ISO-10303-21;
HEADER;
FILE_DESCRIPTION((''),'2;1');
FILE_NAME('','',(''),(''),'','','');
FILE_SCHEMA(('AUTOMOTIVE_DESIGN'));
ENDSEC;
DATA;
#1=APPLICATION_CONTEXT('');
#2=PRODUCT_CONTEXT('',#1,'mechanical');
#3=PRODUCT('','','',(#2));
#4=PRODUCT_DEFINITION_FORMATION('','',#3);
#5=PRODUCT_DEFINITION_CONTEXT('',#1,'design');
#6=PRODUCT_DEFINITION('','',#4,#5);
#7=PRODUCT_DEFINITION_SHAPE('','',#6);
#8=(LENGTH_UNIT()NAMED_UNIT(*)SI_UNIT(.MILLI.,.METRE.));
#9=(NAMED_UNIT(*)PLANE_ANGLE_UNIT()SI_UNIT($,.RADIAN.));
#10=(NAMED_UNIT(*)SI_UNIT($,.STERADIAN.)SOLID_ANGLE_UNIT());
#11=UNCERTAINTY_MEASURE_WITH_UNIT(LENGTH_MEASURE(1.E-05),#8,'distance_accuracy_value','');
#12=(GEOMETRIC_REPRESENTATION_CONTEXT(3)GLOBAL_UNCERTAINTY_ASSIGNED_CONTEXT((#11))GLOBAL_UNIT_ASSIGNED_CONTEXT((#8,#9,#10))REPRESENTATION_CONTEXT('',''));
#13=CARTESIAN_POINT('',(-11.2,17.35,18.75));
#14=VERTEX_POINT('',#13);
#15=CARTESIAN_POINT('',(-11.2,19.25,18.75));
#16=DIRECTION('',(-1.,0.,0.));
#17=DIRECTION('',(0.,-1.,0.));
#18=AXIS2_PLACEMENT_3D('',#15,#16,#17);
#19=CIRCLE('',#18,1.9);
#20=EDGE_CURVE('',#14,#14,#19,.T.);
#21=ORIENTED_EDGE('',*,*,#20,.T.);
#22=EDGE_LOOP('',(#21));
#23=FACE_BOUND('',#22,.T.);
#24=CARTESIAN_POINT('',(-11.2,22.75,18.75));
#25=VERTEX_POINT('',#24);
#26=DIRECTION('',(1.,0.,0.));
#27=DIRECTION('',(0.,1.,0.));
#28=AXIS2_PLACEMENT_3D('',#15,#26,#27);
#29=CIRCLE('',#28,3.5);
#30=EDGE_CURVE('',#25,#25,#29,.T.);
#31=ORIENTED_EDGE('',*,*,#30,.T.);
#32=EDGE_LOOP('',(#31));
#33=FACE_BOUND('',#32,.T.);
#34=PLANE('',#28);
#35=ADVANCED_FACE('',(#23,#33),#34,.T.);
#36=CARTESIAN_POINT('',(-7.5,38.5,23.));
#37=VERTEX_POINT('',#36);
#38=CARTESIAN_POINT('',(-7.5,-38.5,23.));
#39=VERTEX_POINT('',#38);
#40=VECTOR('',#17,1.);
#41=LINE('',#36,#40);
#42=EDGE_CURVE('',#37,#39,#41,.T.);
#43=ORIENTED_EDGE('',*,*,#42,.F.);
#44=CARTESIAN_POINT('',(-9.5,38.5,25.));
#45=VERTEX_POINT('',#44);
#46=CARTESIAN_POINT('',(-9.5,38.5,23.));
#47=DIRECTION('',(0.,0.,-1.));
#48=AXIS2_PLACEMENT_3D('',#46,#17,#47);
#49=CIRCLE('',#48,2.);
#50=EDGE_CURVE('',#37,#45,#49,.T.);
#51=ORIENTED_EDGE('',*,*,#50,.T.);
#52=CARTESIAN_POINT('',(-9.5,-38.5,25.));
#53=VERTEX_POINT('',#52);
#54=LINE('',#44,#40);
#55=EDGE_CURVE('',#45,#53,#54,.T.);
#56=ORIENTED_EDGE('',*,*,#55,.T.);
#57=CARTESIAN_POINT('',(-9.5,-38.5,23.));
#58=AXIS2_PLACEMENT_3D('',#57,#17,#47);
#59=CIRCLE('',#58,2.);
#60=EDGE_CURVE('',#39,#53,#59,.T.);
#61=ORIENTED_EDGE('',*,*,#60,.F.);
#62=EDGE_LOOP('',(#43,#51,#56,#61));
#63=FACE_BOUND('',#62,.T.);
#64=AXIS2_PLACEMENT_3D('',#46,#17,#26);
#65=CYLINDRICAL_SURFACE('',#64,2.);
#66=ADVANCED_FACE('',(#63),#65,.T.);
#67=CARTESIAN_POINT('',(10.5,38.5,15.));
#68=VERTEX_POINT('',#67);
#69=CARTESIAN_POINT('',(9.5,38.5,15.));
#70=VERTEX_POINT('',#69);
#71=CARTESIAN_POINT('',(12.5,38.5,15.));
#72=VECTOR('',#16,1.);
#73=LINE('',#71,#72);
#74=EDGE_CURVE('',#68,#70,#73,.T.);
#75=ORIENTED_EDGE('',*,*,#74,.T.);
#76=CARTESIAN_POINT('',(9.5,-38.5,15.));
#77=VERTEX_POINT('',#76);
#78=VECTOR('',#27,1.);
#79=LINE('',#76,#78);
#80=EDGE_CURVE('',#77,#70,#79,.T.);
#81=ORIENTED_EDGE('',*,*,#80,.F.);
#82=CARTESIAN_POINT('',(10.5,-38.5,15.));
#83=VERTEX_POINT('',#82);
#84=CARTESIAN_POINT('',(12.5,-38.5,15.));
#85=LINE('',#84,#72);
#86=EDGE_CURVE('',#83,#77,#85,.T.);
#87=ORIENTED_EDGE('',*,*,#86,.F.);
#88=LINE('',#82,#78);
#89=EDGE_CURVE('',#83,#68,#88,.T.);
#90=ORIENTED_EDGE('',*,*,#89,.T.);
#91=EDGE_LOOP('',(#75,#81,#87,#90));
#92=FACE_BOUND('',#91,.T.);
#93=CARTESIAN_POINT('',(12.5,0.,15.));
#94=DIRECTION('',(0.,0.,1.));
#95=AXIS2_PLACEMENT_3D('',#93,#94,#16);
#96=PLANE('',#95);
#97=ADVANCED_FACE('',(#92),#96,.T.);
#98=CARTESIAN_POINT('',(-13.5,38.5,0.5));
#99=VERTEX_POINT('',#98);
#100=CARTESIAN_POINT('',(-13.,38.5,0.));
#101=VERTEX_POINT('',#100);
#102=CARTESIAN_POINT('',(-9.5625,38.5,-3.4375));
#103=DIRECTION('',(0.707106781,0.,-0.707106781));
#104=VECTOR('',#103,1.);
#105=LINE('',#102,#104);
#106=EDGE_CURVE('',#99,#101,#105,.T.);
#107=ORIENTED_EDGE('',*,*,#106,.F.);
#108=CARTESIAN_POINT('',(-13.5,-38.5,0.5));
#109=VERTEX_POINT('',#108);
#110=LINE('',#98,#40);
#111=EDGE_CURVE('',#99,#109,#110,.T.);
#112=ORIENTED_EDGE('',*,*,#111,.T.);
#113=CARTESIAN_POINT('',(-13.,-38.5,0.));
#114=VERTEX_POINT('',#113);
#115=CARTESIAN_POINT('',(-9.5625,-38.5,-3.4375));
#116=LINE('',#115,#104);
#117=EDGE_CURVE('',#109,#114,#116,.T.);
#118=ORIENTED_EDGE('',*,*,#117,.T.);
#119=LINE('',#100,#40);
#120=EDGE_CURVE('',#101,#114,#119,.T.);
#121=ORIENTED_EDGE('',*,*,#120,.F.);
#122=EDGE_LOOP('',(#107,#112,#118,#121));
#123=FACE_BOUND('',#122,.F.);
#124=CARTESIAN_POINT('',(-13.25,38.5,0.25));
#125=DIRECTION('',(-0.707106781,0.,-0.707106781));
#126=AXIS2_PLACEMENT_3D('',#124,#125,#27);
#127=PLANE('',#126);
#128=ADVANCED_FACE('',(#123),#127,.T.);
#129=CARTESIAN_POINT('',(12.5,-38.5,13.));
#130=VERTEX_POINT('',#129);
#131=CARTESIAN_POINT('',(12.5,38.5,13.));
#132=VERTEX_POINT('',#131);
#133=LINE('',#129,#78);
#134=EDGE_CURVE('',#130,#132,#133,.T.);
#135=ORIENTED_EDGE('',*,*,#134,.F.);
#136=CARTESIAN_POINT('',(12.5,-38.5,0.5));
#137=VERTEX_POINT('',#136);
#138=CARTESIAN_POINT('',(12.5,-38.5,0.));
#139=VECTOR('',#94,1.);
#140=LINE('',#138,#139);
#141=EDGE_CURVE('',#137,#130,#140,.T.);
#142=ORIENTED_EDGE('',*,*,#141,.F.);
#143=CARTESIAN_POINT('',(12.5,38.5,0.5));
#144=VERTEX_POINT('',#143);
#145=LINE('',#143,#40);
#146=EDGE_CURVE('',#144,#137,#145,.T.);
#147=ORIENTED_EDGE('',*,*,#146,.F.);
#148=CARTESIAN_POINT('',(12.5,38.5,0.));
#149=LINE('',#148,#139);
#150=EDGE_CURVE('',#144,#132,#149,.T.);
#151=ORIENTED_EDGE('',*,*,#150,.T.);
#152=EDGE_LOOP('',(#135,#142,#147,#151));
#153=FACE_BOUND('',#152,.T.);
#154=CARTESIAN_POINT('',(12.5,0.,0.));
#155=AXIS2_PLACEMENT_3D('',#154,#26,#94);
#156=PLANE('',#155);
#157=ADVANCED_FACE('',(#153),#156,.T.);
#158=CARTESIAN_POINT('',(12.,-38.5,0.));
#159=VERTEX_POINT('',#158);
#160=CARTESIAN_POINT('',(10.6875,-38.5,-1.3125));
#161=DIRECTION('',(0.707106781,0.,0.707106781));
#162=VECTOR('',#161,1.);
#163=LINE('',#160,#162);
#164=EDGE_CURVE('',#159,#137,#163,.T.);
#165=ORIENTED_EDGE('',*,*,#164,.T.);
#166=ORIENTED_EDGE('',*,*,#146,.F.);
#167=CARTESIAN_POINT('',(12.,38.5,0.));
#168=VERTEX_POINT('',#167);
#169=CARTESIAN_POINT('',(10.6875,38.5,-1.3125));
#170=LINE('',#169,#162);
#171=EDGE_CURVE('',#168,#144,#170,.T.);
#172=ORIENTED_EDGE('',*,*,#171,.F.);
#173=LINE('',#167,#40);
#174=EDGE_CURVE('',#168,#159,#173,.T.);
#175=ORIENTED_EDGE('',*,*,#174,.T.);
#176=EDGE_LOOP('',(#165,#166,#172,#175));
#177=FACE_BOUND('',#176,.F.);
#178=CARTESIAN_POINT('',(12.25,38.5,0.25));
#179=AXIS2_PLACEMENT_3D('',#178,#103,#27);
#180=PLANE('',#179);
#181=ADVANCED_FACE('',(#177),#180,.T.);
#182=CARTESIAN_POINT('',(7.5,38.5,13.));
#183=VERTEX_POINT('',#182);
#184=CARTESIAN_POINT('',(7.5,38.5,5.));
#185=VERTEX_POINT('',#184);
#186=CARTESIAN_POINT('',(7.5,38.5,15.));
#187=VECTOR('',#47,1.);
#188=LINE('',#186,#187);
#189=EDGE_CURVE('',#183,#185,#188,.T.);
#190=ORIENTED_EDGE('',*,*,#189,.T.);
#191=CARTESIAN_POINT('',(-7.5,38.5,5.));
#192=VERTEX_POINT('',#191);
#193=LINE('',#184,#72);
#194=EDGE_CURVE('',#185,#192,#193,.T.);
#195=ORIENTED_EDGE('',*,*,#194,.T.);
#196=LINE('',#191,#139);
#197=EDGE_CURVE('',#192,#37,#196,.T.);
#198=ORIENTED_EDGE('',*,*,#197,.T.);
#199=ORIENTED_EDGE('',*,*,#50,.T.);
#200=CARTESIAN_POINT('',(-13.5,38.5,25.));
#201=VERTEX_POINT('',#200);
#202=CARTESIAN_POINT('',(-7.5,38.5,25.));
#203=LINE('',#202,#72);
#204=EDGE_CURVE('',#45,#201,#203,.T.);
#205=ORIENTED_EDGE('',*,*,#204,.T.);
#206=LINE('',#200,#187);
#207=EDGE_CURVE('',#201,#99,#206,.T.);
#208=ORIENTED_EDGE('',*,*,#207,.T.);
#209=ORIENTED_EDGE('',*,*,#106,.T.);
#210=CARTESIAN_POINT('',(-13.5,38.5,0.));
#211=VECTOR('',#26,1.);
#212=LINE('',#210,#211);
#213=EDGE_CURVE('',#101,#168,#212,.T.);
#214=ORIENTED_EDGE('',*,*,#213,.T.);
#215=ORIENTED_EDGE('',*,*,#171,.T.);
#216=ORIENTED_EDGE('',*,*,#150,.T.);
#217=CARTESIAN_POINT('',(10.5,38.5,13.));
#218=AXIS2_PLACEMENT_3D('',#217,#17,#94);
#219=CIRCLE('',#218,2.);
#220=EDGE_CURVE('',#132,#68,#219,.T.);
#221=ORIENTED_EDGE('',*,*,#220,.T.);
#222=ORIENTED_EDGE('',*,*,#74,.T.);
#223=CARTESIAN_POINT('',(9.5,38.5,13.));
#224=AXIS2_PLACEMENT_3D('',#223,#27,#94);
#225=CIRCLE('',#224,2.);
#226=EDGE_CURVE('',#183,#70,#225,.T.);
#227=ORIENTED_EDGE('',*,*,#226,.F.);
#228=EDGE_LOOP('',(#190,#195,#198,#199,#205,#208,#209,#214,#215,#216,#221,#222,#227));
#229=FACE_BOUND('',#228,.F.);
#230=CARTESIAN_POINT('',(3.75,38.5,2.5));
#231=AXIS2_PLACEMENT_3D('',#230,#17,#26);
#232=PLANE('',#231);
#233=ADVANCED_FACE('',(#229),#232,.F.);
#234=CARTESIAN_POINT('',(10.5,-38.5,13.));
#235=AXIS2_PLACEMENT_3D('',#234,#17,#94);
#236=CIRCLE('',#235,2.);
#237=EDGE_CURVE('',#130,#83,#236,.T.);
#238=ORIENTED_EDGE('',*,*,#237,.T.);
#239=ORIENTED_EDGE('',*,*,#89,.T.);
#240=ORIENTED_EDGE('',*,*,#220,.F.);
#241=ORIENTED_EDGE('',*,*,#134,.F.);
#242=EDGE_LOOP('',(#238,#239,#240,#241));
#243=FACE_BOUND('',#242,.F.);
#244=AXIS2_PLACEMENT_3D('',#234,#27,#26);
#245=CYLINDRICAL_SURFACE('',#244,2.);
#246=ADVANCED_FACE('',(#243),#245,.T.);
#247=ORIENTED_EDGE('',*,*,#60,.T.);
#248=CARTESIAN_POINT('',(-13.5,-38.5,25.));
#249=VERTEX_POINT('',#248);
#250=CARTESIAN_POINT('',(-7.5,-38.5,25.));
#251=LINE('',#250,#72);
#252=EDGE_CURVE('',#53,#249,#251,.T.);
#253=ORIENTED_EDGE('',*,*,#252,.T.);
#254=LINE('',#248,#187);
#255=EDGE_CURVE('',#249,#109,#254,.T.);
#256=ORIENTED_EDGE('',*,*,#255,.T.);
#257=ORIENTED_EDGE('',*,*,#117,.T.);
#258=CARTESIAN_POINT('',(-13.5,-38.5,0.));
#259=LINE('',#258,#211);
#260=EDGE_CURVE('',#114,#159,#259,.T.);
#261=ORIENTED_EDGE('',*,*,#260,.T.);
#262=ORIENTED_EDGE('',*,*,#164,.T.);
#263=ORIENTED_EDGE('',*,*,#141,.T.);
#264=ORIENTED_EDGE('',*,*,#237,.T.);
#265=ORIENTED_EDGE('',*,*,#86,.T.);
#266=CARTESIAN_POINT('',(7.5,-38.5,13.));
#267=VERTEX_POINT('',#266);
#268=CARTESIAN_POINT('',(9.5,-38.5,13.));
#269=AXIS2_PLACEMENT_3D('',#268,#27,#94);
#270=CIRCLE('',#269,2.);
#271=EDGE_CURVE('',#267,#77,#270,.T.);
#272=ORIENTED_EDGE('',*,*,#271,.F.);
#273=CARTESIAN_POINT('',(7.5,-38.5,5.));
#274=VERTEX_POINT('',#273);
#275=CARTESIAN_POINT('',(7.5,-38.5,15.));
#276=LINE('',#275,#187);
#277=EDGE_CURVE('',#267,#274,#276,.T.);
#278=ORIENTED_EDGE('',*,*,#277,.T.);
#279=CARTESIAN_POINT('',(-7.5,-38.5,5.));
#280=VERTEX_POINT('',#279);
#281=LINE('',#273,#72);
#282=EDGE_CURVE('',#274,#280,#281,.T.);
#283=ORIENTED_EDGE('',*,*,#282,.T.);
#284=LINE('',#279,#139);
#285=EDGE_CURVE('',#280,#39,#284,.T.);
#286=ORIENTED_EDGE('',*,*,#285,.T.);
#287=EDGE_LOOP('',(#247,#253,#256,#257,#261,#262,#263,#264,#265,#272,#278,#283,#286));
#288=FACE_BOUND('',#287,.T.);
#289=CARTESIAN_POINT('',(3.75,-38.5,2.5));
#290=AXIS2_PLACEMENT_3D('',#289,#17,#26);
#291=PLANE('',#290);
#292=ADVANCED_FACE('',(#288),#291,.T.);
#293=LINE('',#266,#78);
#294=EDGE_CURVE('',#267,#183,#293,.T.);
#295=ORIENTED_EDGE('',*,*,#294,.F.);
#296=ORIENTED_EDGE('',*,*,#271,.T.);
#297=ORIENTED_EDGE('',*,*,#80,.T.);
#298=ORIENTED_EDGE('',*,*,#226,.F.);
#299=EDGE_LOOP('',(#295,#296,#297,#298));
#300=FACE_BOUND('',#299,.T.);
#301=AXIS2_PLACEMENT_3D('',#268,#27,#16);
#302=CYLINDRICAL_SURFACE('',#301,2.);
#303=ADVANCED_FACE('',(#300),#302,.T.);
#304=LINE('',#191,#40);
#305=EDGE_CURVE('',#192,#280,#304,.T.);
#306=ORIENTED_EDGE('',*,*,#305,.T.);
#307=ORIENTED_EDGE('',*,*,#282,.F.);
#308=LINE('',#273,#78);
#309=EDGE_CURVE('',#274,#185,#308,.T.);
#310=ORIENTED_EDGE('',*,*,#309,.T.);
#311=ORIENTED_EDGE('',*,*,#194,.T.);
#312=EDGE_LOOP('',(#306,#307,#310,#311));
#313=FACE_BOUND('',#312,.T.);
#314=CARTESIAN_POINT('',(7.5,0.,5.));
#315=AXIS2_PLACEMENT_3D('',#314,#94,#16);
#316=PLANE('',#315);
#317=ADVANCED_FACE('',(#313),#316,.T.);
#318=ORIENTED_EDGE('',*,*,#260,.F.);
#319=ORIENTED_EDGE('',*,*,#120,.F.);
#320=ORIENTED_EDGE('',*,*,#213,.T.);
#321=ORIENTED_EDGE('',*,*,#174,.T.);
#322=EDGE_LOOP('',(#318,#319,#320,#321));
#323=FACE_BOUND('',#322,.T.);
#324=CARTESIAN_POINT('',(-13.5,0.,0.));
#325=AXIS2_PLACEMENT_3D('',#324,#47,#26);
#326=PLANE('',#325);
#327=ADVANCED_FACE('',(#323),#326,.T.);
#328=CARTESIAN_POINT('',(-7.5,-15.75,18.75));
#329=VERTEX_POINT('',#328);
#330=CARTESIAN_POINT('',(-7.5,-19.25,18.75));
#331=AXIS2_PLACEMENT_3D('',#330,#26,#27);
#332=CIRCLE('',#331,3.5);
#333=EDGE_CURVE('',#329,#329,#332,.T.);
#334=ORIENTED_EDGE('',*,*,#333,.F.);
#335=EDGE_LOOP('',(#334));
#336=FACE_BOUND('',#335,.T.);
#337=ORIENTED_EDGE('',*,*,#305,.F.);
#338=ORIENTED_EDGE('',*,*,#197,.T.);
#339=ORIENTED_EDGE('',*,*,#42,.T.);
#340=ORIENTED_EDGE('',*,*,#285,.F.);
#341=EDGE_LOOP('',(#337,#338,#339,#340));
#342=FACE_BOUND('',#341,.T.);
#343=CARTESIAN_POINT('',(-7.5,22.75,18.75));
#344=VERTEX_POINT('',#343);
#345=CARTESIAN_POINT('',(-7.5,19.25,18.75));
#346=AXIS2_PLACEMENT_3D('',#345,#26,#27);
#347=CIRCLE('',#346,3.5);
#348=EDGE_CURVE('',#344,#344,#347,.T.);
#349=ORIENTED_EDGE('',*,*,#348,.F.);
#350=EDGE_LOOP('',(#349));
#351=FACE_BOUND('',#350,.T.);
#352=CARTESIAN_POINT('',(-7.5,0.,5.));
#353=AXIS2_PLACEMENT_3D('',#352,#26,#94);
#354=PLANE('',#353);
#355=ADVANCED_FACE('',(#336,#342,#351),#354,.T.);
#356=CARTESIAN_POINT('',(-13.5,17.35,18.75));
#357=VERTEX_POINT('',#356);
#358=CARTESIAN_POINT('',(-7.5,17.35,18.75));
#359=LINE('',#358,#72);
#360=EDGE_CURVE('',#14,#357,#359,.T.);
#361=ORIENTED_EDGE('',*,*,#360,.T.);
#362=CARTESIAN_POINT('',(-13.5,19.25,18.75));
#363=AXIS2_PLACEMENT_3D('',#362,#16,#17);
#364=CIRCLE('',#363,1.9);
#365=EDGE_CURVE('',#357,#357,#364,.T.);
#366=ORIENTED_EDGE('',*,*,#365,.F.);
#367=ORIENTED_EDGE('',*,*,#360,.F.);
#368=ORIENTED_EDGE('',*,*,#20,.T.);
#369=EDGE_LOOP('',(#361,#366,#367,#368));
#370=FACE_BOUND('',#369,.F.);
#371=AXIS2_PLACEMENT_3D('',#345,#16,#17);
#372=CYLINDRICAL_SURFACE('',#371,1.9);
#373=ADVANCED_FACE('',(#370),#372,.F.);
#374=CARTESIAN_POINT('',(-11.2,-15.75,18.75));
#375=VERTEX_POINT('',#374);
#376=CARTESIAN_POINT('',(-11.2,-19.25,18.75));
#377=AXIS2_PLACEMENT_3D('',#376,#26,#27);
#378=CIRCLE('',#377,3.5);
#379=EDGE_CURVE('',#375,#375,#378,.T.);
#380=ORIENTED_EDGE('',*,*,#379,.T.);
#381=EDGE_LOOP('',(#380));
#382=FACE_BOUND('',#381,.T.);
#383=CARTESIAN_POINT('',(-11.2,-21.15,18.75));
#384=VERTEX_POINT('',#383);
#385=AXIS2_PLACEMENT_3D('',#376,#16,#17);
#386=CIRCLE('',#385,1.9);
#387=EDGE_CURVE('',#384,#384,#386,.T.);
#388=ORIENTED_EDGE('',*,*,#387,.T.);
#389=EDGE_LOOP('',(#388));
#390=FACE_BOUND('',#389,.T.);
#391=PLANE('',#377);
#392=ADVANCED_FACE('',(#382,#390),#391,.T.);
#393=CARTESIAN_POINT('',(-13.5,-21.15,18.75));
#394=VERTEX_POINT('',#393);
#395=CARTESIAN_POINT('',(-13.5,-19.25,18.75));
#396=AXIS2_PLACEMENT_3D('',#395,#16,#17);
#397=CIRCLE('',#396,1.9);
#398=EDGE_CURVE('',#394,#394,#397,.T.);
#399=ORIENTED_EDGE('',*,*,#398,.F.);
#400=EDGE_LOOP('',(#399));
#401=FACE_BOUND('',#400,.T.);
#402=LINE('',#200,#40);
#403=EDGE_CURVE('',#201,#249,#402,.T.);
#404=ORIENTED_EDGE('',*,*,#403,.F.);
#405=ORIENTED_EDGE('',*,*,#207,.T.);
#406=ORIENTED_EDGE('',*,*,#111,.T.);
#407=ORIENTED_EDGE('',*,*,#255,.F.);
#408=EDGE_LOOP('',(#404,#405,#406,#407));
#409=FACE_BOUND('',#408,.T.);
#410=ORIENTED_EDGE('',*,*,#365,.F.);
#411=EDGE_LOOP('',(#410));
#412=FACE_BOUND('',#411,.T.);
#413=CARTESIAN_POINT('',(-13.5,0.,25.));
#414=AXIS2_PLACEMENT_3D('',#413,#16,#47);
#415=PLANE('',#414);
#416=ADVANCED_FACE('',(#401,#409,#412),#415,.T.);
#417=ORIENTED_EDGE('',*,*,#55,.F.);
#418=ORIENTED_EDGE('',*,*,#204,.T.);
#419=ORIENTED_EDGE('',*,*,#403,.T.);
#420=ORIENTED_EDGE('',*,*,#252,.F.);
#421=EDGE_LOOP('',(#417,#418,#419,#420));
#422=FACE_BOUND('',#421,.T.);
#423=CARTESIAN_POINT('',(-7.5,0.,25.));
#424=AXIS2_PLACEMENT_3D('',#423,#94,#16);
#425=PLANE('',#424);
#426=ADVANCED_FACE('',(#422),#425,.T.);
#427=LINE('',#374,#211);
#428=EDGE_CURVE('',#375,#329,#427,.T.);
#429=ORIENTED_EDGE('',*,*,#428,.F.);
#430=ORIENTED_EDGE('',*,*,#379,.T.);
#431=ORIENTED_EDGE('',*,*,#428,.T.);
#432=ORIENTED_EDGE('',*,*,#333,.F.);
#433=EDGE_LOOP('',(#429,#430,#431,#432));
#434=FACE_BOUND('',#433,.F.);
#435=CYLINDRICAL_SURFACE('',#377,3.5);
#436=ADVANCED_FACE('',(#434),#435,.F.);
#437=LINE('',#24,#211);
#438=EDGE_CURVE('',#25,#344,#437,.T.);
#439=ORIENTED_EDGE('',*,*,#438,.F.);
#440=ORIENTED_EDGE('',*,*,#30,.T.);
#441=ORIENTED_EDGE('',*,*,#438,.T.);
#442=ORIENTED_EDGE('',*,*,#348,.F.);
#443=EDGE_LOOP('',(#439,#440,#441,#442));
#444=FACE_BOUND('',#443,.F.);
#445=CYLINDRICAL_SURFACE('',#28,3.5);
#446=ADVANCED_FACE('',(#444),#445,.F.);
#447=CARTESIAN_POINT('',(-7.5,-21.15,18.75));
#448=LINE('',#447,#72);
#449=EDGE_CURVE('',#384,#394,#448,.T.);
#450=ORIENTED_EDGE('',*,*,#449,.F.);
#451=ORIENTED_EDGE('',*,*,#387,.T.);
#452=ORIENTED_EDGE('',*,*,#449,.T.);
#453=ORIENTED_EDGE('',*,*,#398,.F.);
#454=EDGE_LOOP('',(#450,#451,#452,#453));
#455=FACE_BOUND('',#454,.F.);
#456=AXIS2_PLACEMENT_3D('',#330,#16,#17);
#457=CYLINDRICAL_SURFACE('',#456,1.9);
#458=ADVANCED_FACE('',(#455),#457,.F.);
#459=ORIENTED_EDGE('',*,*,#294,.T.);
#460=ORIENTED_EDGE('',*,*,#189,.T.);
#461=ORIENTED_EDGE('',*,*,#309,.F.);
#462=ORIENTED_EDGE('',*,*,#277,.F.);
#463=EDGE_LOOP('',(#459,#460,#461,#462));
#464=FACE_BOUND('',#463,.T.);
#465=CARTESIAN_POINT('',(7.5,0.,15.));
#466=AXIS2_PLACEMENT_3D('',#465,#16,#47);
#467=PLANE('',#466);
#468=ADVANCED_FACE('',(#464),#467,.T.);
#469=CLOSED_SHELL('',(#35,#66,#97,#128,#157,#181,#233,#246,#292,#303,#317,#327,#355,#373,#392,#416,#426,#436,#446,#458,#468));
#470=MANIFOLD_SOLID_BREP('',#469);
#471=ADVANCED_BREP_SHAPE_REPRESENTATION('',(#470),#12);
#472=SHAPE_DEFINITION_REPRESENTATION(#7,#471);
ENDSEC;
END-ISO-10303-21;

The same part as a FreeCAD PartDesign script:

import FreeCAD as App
import Part
import Sketcher
from FreeCAD import Vector


def edges_at(feature, points):
    """Names of the edges that pass closest to the given points."""
    edges = feature.Shape.Edges
    near = lambda p: min(range(len(edges)), key=lambda i: edges[i].distToShape(Part.Vertex(*p))[0])
    return sorted({f"Edge{near(p) + 1}" for p in points})


def add_polygon(sketch, points):
    """Adds a closed chain of lines whose ends are joined by coincident constraints."""
    first, n = sketch.GeometryCount, len(points)
    for a, b in zip(points, points[1:] + points[:1]):
        sketch.addGeometry(Part.LineSegment(App.Vector(*a, 0), App.Vector(*b, 0)), False)
    for i in range(n):
        sketch.addConstraint(Sketcher.Constraint("Coincident", first + i, 2, first + (i + 1) % n, 1))

doc = App.newDocument("Part")
params = doc.addObject("Spreadsheet::Sheet", "Params")
for row, (alias, value) in enumerate([
    ("sketch1_width", "15 mm"),
    ("sketch1_width2", "6 mm"),
    ("sketch1_width3", "26 mm"),
    ("sketch1_height", "20 mm"),
    ("sketch1_height2", "25 mm"),
    ("pad1_length", "77 mm"),
    ("sketch2_diameter", "3.8 mm"),
    ("hole_diameter", "3.8 mm"),
    ("hole_depth", "6 mm"),
    ("hole_cbore_diameter", "7 mm"),
    ("hole_cbore_depth", "3.7 mm"),
    ("fillet_radius", "2 mm"),
    ("chamfer_size", "0.5 mm"),
], start=1):
    params.set(f"A{row}", alias)
    params.set(f"B{row}", "=" + value)
    params.setAlias(f"B{row}", alias)

body = doc.addObject("PartDesign::Body", "Body")

sketch1 = doc.addObject("Sketcher::SketchObject", "Sketch")
body.addObject(sketch1)
sketch1.AttachmentSupport = (doc.XZ_Plane, [""])
sketch1.MapMode = "FlatFace"
add_polygon(sketch1, [(8, 5), (-8, 5), (-8, 25), (-14, 25), (-14, 0), (12, 0), (12, 15), (8, 15)])
sketch1.addConstraint(Sketcher.Constraint("Horizontal", 0))
sketch1.addConstraint(Sketcher.Constraint("Vertical", 1))
sketch1.addConstraint(Sketcher.Constraint("Horizontal", 2))
sketch1.addConstraint(Sketcher.Constraint("Vertical", 3))
sketch1.addConstraint(Sketcher.Constraint("Horizontal", 4))
sketch1.addConstraint(Sketcher.Constraint("Vertical", 5))
sketch1.addConstraint(Sketcher.Constraint("Horizontal", 6))
sketch1.addConstraint(Sketcher.Constraint("Vertical", 7))
sketch1.addConstraint(Sketcher.Constraint("PointOnObject", 3, 2, -1))
sketch1.addConstraint(Sketcher.Constraint("Equal", 0, 5))
sketch1.addConstraint(Sketcher.Constraint("DistanceX", 0, 2, 0, 1, 15.0))
sketch1.addConstraint(Sketcher.Constraint("DistanceX", 2, 2, 2, 1, 6.0))
sketch1.addConstraint(Sketcher.Constraint("DistanceX", 4, 1, 4, 2, 26.0))
sketch1.addConstraint(Sketcher.Constraint("DistanceY", 1, 1, 1, 2, 20.0))
sketch1.addConstraint(Sketcher.Constraint("DistanceY", 3, 2, 3, 1, 25.0))
sketch1.addConstraint(Sketcher.Constraint("DistanceX", 0, 2, -1, 1, 7.5))
sketch1.setExpression("Constraints[18]", "Params.sketch1_width")
sketch1.setExpression("Constraints[19]", "Params.sketch1_width2")
sketch1.setExpression("Constraints[20]", "Params.sketch1_width3")
sketch1.setExpression("Constraints[21]", "Params.sketch1_height")
sketch1.setExpression("Constraints[22]", "Params.sketch1_height2")
pad1 = doc.addObject("PartDesign::Pad", "Pad")
body.addObject(pad1)
pad1.Profile = sketch1
pad1.setExpression("Length", "Params.pad1_length")
pad1.Midplane = True

sketch2 = doc.addObject("Sketcher::SketchObject", "Sketch001")
body.addObject(sketch2)
sketch2.AttachmentSupport = (doc.YZ_Plane, [""])
sketch2.MapMode = "FlatFace"
sketch2.AttachmentOffset = App.Placement(Vector(0, 0, -7.5), App.Rotation())
sketch2.addGeometry(Part.Circle(Vector(-19.2, 18.8, 0), Vector(0, 0, 1), 1.9), False)
sketch2.addGeometry(Part.Circle(Vector(19.2, 18.8, 0), Vector(0, 0, 1), 1.9), False)
sketch2.addConstraint(Sketcher.Constraint("Equal", 0, 1))
sketch2.addConstraint(Sketcher.Constraint("Symmetric", 0, 3, 1, 3, -2))
sketch2.addConstraint(Sketcher.Constraint("Diameter", 0, 3.8))
sketch2.addConstraint(Sketcher.Constraint("DistanceX", 0, 3, 1, 3, 38.5))
sketch2.addConstraint(Sketcher.Constraint("DistanceY", -1, 1, 0, 3, 18.75))
sketch2.setExpression("Constraints[2]", "Params.sketch2_diameter")
doc.recompute()
hole = doc.addObject("PartDesign::Hole", "Hole")
body.addObject(hole)
hole.Profile = sketch2
hole.ThreadType = "None"
hole.setExpression("Diameter", "Params.hole_diameter")
hole.DepthType = "Dimension"
hole.setExpression("Depth", "Params.hole_depth")
hole.DrillPoint = "Flat"
hole.HoleCutType = "Counterbore"
hole.setExpression("HoleCutDiameter", "Params.hole_cbore_diameter")
hole.setExpression("HoleCutDepth", "Params.hole_cbore_depth")
doc.recompute()

fillet = doc.addObject("PartDesign::Fillet", "Fillet")
body.addObject(fillet)
fillet.Base = (hole, edges_at(hole, [(12.5, 0, 15), (7.5, 0, 15), (-7.5, 0, 25)]))
fillet.setExpression("Radius", "Params.fillet_radius")
doc.recompute()

chamfer = doc.addObject("PartDesign::Chamfer", "Chamfer")
body.addObject(chamfer)
chamfer.Base = (fillet, edges_at(fillet, [(12.5, 0, 0), (-13.5, 0, 0)]))
chamfer.setExpression("Size", "Params.chamfer_size")

doc.recompute()
